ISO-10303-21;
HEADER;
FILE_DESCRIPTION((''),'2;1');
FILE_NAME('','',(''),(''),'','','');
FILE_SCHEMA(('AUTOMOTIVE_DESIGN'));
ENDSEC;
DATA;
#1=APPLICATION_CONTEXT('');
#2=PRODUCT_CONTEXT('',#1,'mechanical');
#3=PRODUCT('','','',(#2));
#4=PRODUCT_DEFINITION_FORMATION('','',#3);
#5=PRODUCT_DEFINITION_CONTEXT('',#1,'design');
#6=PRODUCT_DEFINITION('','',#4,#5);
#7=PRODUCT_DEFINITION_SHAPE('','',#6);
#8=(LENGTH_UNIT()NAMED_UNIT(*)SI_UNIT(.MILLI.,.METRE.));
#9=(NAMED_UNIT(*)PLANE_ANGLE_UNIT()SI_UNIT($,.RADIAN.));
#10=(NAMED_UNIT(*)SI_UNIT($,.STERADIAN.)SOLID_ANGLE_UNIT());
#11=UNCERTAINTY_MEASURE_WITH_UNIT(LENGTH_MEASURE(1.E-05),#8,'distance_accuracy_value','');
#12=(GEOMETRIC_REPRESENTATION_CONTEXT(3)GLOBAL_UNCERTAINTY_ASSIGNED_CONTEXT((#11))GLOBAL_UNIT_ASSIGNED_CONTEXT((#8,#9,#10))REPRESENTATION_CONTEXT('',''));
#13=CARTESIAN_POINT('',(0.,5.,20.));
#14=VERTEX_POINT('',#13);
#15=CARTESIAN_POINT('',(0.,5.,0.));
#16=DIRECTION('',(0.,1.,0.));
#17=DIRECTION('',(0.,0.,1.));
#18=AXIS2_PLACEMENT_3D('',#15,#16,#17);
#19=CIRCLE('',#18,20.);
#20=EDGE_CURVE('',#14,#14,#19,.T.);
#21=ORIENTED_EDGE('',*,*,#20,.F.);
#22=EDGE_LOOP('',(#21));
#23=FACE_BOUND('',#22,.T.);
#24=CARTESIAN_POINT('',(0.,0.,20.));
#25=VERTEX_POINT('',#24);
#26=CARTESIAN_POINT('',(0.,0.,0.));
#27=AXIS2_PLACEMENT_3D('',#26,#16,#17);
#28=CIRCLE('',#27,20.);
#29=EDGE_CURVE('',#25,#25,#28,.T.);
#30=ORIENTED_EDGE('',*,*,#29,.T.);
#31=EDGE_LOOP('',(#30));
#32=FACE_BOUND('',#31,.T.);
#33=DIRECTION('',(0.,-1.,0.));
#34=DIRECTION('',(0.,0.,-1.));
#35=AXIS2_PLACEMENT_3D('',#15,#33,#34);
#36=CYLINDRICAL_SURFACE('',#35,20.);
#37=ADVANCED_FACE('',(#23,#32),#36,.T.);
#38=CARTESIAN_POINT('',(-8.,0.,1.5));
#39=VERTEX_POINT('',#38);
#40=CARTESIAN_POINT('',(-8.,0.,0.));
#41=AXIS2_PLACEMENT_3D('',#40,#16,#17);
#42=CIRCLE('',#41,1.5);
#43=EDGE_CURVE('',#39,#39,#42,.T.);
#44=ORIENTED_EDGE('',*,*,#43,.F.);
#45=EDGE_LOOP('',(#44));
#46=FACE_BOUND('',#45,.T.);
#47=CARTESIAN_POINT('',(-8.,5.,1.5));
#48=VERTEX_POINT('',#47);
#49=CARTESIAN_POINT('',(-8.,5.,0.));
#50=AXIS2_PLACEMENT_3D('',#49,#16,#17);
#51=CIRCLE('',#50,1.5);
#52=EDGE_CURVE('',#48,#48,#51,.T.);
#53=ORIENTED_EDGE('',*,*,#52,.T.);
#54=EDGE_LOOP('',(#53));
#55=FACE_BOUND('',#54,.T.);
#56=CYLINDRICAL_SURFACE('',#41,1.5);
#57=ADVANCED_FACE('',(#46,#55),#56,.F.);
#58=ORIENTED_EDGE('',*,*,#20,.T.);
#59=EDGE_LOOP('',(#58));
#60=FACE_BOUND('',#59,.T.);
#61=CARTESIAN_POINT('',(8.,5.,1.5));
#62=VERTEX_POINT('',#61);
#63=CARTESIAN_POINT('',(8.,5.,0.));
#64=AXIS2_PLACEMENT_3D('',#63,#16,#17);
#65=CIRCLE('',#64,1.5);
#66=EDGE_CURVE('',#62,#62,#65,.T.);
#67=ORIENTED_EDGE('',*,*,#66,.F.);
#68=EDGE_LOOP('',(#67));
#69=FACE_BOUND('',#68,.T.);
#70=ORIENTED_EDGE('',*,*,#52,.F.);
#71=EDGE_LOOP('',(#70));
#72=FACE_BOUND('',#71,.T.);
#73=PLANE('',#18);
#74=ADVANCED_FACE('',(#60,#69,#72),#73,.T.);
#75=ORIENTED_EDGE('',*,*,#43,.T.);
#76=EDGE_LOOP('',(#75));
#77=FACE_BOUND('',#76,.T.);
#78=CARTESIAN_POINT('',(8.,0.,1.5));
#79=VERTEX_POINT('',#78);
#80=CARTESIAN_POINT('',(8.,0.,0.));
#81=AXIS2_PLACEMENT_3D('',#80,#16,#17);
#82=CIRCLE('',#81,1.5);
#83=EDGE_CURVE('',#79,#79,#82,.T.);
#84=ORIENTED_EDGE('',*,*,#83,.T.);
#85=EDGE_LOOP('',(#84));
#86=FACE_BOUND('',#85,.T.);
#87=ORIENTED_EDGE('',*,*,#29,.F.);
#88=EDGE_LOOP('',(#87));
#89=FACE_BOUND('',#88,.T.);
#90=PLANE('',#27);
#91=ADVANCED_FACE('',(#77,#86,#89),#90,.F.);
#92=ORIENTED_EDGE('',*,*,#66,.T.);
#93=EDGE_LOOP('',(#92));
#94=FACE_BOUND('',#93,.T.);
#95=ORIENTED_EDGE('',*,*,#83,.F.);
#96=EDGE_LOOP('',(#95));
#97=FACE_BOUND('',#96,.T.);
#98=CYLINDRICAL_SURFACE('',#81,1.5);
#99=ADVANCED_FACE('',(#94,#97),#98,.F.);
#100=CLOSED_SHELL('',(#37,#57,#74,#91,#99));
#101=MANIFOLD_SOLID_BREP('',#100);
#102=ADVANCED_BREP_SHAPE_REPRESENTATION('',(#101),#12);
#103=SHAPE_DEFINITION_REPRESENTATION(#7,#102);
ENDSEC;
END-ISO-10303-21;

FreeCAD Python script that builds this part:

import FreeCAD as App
import Part
import Sketcher

V = App.Vector
Q = App.Units.Quantity

doc = App.newDocument("Part")
body = doc.addObject("PartDesign::Body", "Body")

# Sketch on XZ plane
sketch1 = body.newObject("Sketcher::SketchObject", "Sketch")
sketch1.AttachmentSupport = (doc.getObject("XZ_Plane"), [""])
sketch1.MapMode = "FlatFace"
sketch1.addGeometry(Part.Circle(V(0, 0, 0), V(0, 0, 1), 20), False)
sketch1.addConstraint([
    Sketcher.Constraint("Coincident", 0, 3, -1, 1),
    Sketcher.Constraint("Diameter", 0, Q("40 mm")),
])
pad1 = body.newObject("PartDesign::Pad", "Pad")
pad1.Profile = sketch1
pad1.Length = 5
pad1.Reversed = True

# Sketch on XZ plane
sketch2 = body.newObject("Sketcher::SketchObject", "Sketch001")
sketch2.AttachmentSupport = (doc.getObject("XZ_Plane"), [""])
sketch2.MapMode = "FlatFace"
sketch2.AttachmentOffset = App.Placement(V(0, 0, -5), App.Rotation())
sketch2.addGeometry([
    Part.Circle(V(8, 0, 0), V(0, 0, 1), 1.5),
    Part.Circle(V(-8, 0, 0), V(0, 0, 1), 1.5),
], False)
sketch2.addConstraint([
    Sketcher.Constraint("Equal", 0, 1),
    Sketcher.Constraint("Symmetric", 0, 3, 1, 3, -1, 1),
    Sketcher.Constraint("PointOnObject", 0, 3, -1),
    Sketcher.Constraint("Diameter", 0, Q("3 mm")),
    Sketcher.Constraint("DistanceX", -1, 1, 0, 3, Q("8 mm")),
])
pocket1 = body.newObject("PartDesign::Pocket", "Pocket")
pocket1.Profile = sketch2
pocket1.Length = 5
pocket1.Reversed = True

doc.recompute()
